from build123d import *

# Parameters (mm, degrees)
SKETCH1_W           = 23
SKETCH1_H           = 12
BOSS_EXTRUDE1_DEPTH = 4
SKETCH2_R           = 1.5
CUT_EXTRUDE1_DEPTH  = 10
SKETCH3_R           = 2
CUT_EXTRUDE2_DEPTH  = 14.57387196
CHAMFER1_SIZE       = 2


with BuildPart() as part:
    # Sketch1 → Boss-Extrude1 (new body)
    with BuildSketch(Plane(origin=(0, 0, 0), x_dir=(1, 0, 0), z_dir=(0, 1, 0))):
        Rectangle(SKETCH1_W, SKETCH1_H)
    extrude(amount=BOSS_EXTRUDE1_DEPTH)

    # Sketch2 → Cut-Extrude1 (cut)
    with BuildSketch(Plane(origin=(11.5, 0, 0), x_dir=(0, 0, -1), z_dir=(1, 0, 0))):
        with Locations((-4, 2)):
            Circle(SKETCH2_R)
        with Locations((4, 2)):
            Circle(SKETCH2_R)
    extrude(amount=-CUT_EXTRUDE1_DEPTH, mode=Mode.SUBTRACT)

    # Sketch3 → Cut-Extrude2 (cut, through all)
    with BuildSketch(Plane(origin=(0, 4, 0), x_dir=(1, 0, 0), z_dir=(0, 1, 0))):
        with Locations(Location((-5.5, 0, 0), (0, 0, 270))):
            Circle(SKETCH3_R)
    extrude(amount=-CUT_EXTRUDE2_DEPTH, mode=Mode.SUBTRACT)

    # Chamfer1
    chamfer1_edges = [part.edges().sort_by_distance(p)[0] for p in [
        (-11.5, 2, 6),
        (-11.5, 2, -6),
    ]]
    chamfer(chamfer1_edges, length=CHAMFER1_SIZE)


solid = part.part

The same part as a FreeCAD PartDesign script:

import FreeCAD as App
import Part
import Sketcher

V = App.Vector
Q = App.Units.Quantity


def edges_at(feature, points):
    """Names of the edges that pass closest to the given points."""
    edges = feature.Shape.Edges
    near = lambda p: min(range(len(edges)), key=lambda i: edges[i].distToShape(Part.Vertex(*p))[0])
    return sorted({f"Edge{near(p) + 1}" for p in points})


def add_polygon(sketch, points):
    """Adds a closed chain of lines whose ends are joined by coincident constraints."""
    first, n = sketch.GeometryCount, len(points)
    for a, b in zip(points, points[1:] + points[:1]):
        sketch.addGeometry(Part.LineSegment(App.Vector(*a, 0), App.Vector(*b, 0)), False)
    for i in range(n):
        sketch.addConstraint(Sketcher.Constraint("Coincident", first + i, 2, first + (i + 1) % n, 1))

doc = App.newDocument("Part")
params = doc.addObject("Spreadsheet::Sheet", "Params")
for row, (alias, value) in enumerate([
    ("sketch1_width", "23 mm"),
    ("sketch1_height", "12 mm"),
    ("pad1_length", "4 mm"),
    ("sketch2_diameter", "3 mm"),
    ("pocket1_length", "10 mm"),
    ("sketch3_diameter", "4 mm"),
    ("chamfer_size", "2 mm"),
], start=1):
    params.set(f"A{row}", alias)
    params.set(f"B{row}", "=" + value)
    params.setAlias(f"B{row}", alias)

body = doc.addObject("PartDesign::Body", "Body")

# Sketch on XZ plane
sketch1 = body.newObject("Sketcher::SketchObject", "Sketch")
sketch1.AttachmentSupport = (doc.getObject("XZ_Plane"), [""])
sketch1.MapMode = "FlatFace"
add_polygon(sketch1, [(-12, -6), (-12, 6), (12, 6), (12, -6)])  # lines 0-3
sketch1.addConstraint([
    Sketcher.Constraint("Vertical", 0),
    Sketcher.Constraint("Horizontal", 1),
    Sketcher.Constraint("Vertical", 2),
    Sketcher.Constraint("Horizontal", 3),
    Sketcher.Constraint("Symmetric", 0, 2, 2, 2, -1, 1),
    Sketcher.Constraint("DistanceX", 1, 1, 1, 2, Q("23 mm")),
    Sketcher.Constraint("DistanceY", 0, 1, 0, 2, Q("12 mm")),
])
sketch1.setExpression("Constraints[9]", "Params.sketch1_width")
sketch1.setExpression("Constraints[10]", "Params.sketch1_height")
pad1 = body.newObject("PartDesign::Pad", "Pad")
pad1.Profile = sketch1
pad1.setExpression("Length", "Params.pad1_length")
pad1.Reversed = True

# Sketch on YZ plane
sketch2 = body.newObject("Sketcher::SketchObject", "Sketch001")
sketch2.AttachmentSupport = (doc.getObject("YZ_Plane"), [""])
sketch2.MapMode = "FlatFace"
sketch2.AttachmentOffset = App.Placement(V(0, 0, 11.5), App.Rotation())
sketch2.addGeometry([
    Part.Circle(V(2, 4, 0), V(0, 0, 1), 1.5),
    Part.Circle(V(2, -4, 0), V(0, 0, 1), 1.5),
], False)
sketch2.addConstraint([
    Sketcher.Constraint("Equal", 0, 1),
    Sketcher.Constraint("Symmetric", 0, 3, 1, 3, -1),
    Sketcher.Constraint("Diameter", 0, Q("3 mm")),
    Sketcher.Constraint("DistanceX", -1, 1, 0, 3, Q("2 mm")),
    Sketcher.Constraint("DistanceY", -1, 1, 0, 3, Q("4 mm")),
])
sketch2.setExpression("Constraints[2]", "Params.sketch2_diameter")
pocket1 = body.newObject("PartDesign::Pocket", "Pocket")
pocket1.Profile = sketch2
pocket1.setExpression("Length", "Params.pocket1_length")

# Sketch on XZ plane
sketch3 = body.newObject("Sketcher::SketchObject", "Sketch002")
sketch3.AttachmentSupport = (doc.getObject("XZ_Plane"), [""])
sketch3.MapMode = "FlatFace"
sketch3.AttachmentOffset = App.Placement(V(0, 0, -4), App.Rotation())
sketch3.addGeometry(Part.Circle(V(-5.5, 0, 0), V(0, 0, 1), 2), False)
sketch3.addConstraint([
    Sketcher.Constraint("PointOnObject", 0, 3, -1),
    Sketcher.Constraint("Diameter", 0, Q("4 mm")),
    Sketcher.Constraint("DistanceX", 0, 3, -1, 1, Q("5.5 mm")),
])
sketch3.setExpression("Constraints[1]", "Params.sketch3_diameter")
pocket2 = body.newObject("PartDesign::Pocket", "Pocket001")
pocket2.Profile = sketch3
pocket2.Type = "ThroughAll"
pocket2.Reversed = True
doc.recompute()

chamfer = body.newObject("PartDesign::Chamfer", "Chamfer")
chamfer.Base = (pocket2, edges_at(pocket2, [(-11.5, 2, 6), (-11.5, 2, -6)]))
chamfer.setExpression("Size", "Params.chamfer_size")

doc.recompute()
